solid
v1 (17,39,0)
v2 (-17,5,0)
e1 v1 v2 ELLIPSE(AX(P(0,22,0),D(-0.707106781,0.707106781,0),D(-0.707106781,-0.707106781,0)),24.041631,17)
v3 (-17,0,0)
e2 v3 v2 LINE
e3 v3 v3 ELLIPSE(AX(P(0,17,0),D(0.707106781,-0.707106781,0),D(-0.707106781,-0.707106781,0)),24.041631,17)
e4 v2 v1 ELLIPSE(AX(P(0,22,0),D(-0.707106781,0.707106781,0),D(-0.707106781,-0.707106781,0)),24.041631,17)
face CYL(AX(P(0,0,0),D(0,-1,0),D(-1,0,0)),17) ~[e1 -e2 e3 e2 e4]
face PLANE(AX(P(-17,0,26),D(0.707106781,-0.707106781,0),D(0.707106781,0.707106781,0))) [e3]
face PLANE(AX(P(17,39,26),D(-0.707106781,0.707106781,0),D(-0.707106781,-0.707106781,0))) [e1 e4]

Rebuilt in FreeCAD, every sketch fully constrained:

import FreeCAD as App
import Part
import Sketcher
Q = App.Units.Quantity

doc = App.newDocument("Part")
params = doc.addObject("Spreadsheet::Sheet", "Params")
for row, (alias, value) in enumerate([
    ("sketch1_diameter", "34 mm"),
    ("pad1_length", "39 mm"),
    ("sketch2_width", "34 mm"),
    ("pocket1_length", "53.75 mm"),
], start=1):
    params.set(f"A{row}", alias)
    params.set(f"B{row}", "=" + value)
    params.setAlias(f"B{row}", alias)

body = doc.addObject("PartDesign::Body", "Body")

sketch1 = body.newObject("Sketcher::SketchObject", "Sketch")
sketch1.AttachmentSupport = (doc.getObject("XZ_Plane"), [""])
sketch1.MapMode = "FlatFace"
sketch1.addGeometry(Part.Circle(App.Vector(0, 0, 0), App.Vector(0, 0, 1), 17), False)
sketch1.addConstraint(Sketcher.Constraint("Coincident", 0, 3, -1, 1))
sketch1.addConstraint(Sketcher.Constraint("Diameter", 0, 34.0))
sketch1.setExpression("Constraints[1]", "Params.sketch1_diameter")
pad1 = body.newObject("PartDesign::Pad", "Pad")
pad1.Profile = sketch1
pad1.setExpression("Length", "Params.pad1_length")
pad1.Reversed = True

sketch2 = body.newObject("Sketcher::SketchObject", "Sketch001")
sketch2.AttachmentSupport = (doc.getObject("XY_Plane"), [""])
sketch2.MapMode = "FlatFace"
sketch2.AttachmentOffset = App.Placement(App.Vector(0, 0, 26), App.Rotation())
sketch2.addGeometry(Part.LineSegment(App.Vector(-18, 4, 0), App.Vector(17, 39, 0)), False)
sketch2.addGeometry(Part.LineSegment(App.Vector(17, 39, 0), App.Vector(-17, 39, 0)), False)
sketch2.addGeometry(Part.LineSegment(App.Vector(-17, 39, 0), App.Vector(-18, 4, 0)), False)
sketch2.addGeometry(Part.LineSegment(App.Vector(20, 37, 0), App.Vector(-17, 0, 0)), False)
sketch2.addGeometry(Part.LineSegment(App.Vector(-17, 0, 0), App.Vector(17, 0, 0)), False)
sketch2.addGeometry(Part.LineSegment(App.Vector(17, 0, 0), App.Vector(20, 37, 0)), False)
sketch2.addConstraint(Sketcher.Constraint("Coincident", 0, 2, 1, 1))
sketch2.addConstraint(Sketcher.Constraint("Coincident", 1, 2, 2, 1))
sketch2.addConstraint(Sketcher.Constraint("Coincident", 2, 2, 0, 1))
sketch2.addConstraint(Sketcher.Constraint("Coincident", 3, 2, 4, 1))
sketch2.addConstraint(Sketcher.Constraint("Coincident", 4, 2, 5, 1))
sketch2.addConstraint(Sketcher.Constraint("Coincident", 5, 2, 3, 1))
sketch2.addConstraint(Sketcher.Constraint("Horizontal", 1))
sketch2.addConstraint(Sketcher.Constraint("Horizontal", 4))
sketch2.addConstraint(Sketcher.Constraint("Symmetric", 3, 2, 4, 2, -1, 1))
sketch2.addConstraint(Sketcher.Constraint("Parallel", 0, 3))
sketch2.addConstraint(Sketcher.Constraint("Vertical", 1, 2, 3, 2))
sketch2.addConstraint(Sketcher.Constraint("Vertical", 0, 2, 4, 2))
sketch2.addConstraint(Sketcher.Constraint("Angle", 0, Q("45 deg")))
sketch2.addConstraint(Sketcher.Constraint("DistanceX", 1, 2, 1, 1, 34.0))
sketch2.addConstraint(Sketcher.Constraint("DistanceY", -1, 1, 0, 2, 39.0))
sketch2.addConstraint(Sketcher.Constraint("Distance", 0, 49.963))
sketch2.addConstraint(Sketcher.Constraint("Distance", 3, 52.4535))
sketch2.setExpression("Constraints[13]", "Params.sketch2_width")
pocket1 = body.newObject("PartDesign::Pocket", "Pocket")
pocket1.Profile = sketch2
pocket1.setExpression("Length", "Params.pocket1_length")

doc.recompute()
